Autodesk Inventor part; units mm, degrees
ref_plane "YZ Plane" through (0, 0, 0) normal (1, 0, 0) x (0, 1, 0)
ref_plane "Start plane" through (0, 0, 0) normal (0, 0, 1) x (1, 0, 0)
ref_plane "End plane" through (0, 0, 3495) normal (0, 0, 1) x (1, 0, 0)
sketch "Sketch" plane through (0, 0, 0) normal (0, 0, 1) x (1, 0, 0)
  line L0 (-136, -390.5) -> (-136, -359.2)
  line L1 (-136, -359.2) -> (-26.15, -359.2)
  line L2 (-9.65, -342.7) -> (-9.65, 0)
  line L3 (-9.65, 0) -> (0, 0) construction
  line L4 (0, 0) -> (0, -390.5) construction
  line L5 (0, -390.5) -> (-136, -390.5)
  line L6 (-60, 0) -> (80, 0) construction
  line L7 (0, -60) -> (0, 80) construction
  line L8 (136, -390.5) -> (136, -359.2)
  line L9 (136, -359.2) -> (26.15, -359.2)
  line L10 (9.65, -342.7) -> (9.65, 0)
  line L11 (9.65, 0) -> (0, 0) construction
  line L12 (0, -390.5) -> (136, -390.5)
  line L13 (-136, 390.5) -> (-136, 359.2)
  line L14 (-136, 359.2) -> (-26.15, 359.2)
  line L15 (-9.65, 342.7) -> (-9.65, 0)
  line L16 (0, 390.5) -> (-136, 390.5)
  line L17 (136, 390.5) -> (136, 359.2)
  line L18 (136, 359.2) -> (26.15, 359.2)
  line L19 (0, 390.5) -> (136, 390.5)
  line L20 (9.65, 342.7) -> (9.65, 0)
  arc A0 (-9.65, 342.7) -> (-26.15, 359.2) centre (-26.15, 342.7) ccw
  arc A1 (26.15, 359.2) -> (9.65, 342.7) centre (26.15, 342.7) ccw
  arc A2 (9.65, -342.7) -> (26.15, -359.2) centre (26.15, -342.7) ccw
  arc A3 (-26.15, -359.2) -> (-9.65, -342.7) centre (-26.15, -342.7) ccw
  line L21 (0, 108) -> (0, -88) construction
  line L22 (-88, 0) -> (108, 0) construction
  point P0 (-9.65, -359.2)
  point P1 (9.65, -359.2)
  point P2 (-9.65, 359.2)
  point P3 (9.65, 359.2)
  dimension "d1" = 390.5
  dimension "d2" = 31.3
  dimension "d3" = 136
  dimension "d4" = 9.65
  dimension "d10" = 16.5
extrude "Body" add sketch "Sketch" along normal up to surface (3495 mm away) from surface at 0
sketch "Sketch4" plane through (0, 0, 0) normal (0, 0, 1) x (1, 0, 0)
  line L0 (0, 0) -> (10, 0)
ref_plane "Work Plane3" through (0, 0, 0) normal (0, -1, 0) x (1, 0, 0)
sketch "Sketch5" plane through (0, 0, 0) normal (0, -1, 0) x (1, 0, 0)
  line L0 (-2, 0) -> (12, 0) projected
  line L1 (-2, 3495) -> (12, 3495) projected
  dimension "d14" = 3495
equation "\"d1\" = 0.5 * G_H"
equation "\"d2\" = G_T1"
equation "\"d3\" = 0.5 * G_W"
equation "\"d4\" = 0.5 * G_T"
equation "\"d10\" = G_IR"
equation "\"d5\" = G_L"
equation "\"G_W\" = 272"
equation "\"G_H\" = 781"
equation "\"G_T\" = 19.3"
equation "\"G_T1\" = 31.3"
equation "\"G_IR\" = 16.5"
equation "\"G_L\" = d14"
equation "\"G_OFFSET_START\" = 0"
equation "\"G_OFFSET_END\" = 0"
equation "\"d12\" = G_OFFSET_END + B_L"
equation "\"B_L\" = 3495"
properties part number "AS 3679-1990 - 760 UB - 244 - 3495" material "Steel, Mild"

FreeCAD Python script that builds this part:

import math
import FreeCAD as App
import Part
import Sketcher
Q = App.Units.Quantity

doc = App.newDocument("Part")
params = doc.addObject("Spreadsheet::Sheet", "Params")
for row, (alias, value) in enumerate([
    ("sketch1_radius", "16.5 mm"),
    ("sketch1_height", "31.3 mm"),
    ("pad1_length", "3495 mm"),
], start=1):
    params.set(f"A{row}", alias)
    params.set(f"B{row}", "=" + value)
    params.setAlias(f"B{row}", alias)

body = doc.addObject("PartDesign::Body", "Body")

# Sketch on XY plane
sketch1 = doc.addObject("Sketcher::SketchObject", "Sketch")
body.addObject(sketch1)
sketch1.AttachmentSupport = (doc.XY_Plane, [""])
sketch1.MapMode = "FlatFace"
sketch1.addGeometry([
    Part.LineSegment(App.Vector(-136, -359, 0), App.Vector(-136, -390, 0)),  # 0
    Part.LineSegment(App.Vector(-136, -390, 0), App.Vector(136, -390, 0)),  # 1
    Part.LineSegment(App.Vector(136, -390, 0), App.Vector(136, -359, 0)),  # 2
    Part.LineSegment(App.Vector(136, -359, 0), App.Vector(26, -359, 0)),  # 3
    Part.ArcOfCircle(Part.Circle(App.Vector(26, -343, 0), App.Vector(0, 0, 1), 16), math.radians(180), math.radians(270)),  # 4
    Part.LineSegment(App.Vector(10, -343, 0), App.Vector(10, 343, 0)),  # 5
    Part.ArcOfCircle(Part.Circle(App.Vector(26, 343, 0), App.Vector(0, 0, 1), 16), math.radians(90), math.radians(180)),  # 6
    Part.LineSegment(App.Vector(26, 359, 0), App.Vector(136, 359, 0)),  # 7
    Part.LineSegment(App.Vector(136, 359, 0), App.Vector(136, 390, 0)),  # 8
    Part.LineSegment(App.Vector(136, 390, 0), App.Vector(-136, 390, 0)),  # 9
    Part.LineSegment(App.Vector(-136, 390, 0), App.Vector(-136, 359, 0)),  # 10
    Part.LineSegment(App.Vector(-136, 359, 0), App.Vector(-26, 359, 0)),  # 11
    Part.ArcOfCircle(Part.Circle(App.Vector(-26, 343, 0), App.Vector(0, 0, 1), 16), math.radians(0), math.radians(90)),  # 12
    Part.LineSegment(App.Vector(-10, 343, 0), App.Vector(-10, -343, 0)),  # 13
    Part.ArcOfCircle(Part.Circle(App.Vector(-26, -343, 0), App.Vector(0, 0, 1), 16), math.radians(-90), math.radians(0)),  # 14
    Part.LineSegment(App.Vector(-26, -359, 0), App.Vector(-136, -359, 0)),  # 15
], False)
sketch1.addConstraint([
    Sketcher.Constraint("Coincident", 0, 2, 1, 1),
    Sketcher.Constraint("Coincident", 1, 2, 2, 1),
    Sketcher.Constraint("Coincident", 2, 2, 3, 1),
    Sketcher.Constraint("Tangent", 3, 2, 4, 2),
    Sketcher.Constraint("Tangent", 4, 1, 5, 1),
    Sketcher.Constraint("Tangent", 5, 2, 6, 2),
    Sketcher.Constraint("Tangent", 6, 1, 7, 1),
    Sketcher.Constraint("Coincident", 7, 2, 8, 1),
    Sketcher.Constraint("Coincident", 8, 2, 9, 1),
    Sketcher.Constraint("Coincident", 9, 2, 10, 1),
    Sketcher.Constraint("Coincident", 10, 2, 11, 1),
    Sketcher.Constraint("Tangent", 11, 2, 12, 2),
    Sketcher.Constraint("Tangent", 12, 1, 13, 1),
    Sketcher.Constraint("Tangent", 13, 2, 14, 2),
    Sketcher.Constraint("Tangent", 14, 1, 15, 1),
    Sketcher.Constraint("Coincident", 15, 2, 0, 1),
    Sketcher.Constraint("Vertical", 0),
    Sketcher.Constraint("Horizontal", 1),
    Sketcher.Constraint("Vertical", 2),
    Sketcher.Constraint("Horizontal", 3),
    Sketcher.Constraint("Vertical", 5),
    Sketcher.Constraint("Horizontal", 7),
    Sketcher.Constraint("Vertical", 8),
    Sketcher.Constraint("Horizontal", 9),
    Sketcher.Constraint("Vertical", 10),
    Sketcher.Constraint("Horizontal", 11),
    Sketcher.Constraint("Vertical", 13),
    Sketcher.Constraint("Horizontal", 15),
    Sketcher.Constraint("Equal", 4, 6),
    Sketcher.Constraint("Equal", 6, 12),
    Sketcher.Constraint("Equal", 12, 14),
    Sketcher.Constraint("Symmetric", 4, 3, 12, 3, -1, 1),
    Sketcher.Constraint("Symmetric", 0, 2, 8, 2, -1, 1),
    Sketcher.Constraint("Symmetric", 7, 2, 10, 2, -2),
    Sketcher.Constraint("Symmetric", 2, 2, 15, 2, -2),
    Sketcher.Constraint("Radius", 4, Q("16.5 mm")),
    Sketcher.Constraint("DistanceY", 0, 2, 0, 1, Q("31.3 mm")),
    Sketcher.Constraint("DistanceX", 0, 2, -1, 1, Q("136 mm")),
    Sketcher.Constraint("DistanceY", 0, 2, -1, 1, Q("390.5 mm")),
    Sketcher.Constraint("DistanceX", -1, 1, 4, 1, Q("9.65 mm")),
])
sketch1.setExpression("Constraints[35]", "Params.sketch1_radius")
sketch1.setExpression("Constraints[36]", "Params.sketch1_height")
pad1 = doc.addObject("PartDesign::Pad", "Pad")
body.addObject(pad1)
pad1.Profile = sketch1
pad1.setExpression("Length", "Params.pad1_length")

doc.recompute()
